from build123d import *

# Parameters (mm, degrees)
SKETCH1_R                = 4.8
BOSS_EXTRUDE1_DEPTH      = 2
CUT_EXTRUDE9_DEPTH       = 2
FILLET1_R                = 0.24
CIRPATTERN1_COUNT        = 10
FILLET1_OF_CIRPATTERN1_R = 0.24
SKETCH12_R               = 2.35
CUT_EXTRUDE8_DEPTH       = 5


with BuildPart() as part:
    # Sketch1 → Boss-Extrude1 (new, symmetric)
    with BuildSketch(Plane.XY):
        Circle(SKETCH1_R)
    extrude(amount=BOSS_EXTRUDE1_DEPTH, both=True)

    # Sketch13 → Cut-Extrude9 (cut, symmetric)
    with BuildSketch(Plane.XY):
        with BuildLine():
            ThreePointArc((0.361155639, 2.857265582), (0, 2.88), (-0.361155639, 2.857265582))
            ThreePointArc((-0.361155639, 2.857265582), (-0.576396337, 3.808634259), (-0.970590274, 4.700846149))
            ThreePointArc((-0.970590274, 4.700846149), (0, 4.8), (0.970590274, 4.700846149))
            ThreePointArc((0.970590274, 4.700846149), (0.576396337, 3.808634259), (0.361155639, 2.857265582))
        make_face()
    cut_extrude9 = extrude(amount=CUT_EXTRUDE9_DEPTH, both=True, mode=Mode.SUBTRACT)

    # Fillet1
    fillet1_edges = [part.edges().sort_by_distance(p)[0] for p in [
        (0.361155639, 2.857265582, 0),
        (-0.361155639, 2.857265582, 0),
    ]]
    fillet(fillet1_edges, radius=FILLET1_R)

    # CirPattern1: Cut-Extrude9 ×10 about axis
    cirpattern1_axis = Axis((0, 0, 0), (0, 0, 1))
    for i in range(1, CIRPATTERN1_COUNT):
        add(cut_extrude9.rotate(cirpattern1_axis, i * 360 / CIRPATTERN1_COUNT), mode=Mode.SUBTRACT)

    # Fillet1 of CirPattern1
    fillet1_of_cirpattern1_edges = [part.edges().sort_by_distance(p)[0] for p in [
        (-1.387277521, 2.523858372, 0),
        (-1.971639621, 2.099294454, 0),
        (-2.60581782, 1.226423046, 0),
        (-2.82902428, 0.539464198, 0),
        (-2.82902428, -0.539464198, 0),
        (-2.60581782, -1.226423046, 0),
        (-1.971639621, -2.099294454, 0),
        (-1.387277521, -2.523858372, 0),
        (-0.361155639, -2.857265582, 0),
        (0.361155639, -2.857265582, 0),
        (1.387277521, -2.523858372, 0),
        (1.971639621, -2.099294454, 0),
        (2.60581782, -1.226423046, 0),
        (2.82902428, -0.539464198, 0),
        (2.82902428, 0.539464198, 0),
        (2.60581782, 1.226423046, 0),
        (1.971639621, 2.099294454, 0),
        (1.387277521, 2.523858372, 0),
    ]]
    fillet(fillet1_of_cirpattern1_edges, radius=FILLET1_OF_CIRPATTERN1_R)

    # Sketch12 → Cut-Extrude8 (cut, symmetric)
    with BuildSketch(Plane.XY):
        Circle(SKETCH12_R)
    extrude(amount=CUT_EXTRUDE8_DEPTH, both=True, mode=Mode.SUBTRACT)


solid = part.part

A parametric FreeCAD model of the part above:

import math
import FreeCAD as App
import Part
import Sketcher
from FreeCAD import Vector
Q = App.Units.Quantity


def edges_at(feature, points):
    """Names of the edges that pass closest to the given points."""
    edges = feature.Shape.Edges
    near = lambda p: min(range(len(edges)), key=lambda i: edges[i].distToShape(Part.Vertex(*p))[0])
    return sorted({f"Edge{near(p) + 1}" for p in points})

doc = App.newDocument("Part")
params = doc.addObject("Spreadsheet::Sheet", "Params")
for row, (alias, value) in enumerate([
    ("sketch1_diameter", "9.6 mm"),
    ("pad1_length", "4 mm"),
    ("sketch2_radius", "4.8 mm"),
    ("sketch2_radius2", "2.88 mm"),
    ("pocket1_length", "4 mm"),
    ("fillet_radius", "0.24 mm"),
    ("fillet2_radius", "0.24 mm"),
    ("sketch3_diameter", "4.7 mm"),
    ("pocket2_length", "10 mm"),
], start=1):
    params.set(f"A{row}", alias)
    params.set(f"B{row}", "=" + value)
    params.setAlias(f"B{row}", alias)

body = doc.addObject("PartDesign::Body", "Body")

# Sketch on XY plane
sketch1 = body.newObject("Sketcher::SketchObject", "Sketch")
sketch1.AttachmentSupport = (doc.getObject("XY_Plane"), [""])
sketch1.MapMode = "FlatFace"
sketch1.addGeometry(Part.Circle(Vector(0, 0, 0), Vector(0, 0, 1), 4.8), False)
sketch1.addConstraint([
    Sketcher.Constraint("Coincident", 0, 3, -1, 1),
    Sketcher.Constraint("Diameter", 0, Q("9.6 mm")),
])
sketch1.setExpression("Constraints[1]", "Params.sketch1_diameter")
pad1 = body.newObject("PartDesign::Pad", "Pad")
pad1.Profile = sketch1
pad1.setExpression("Length", "Params.pad1_length")
pad1.Midplane = True

# Sketch on XY plane
sketch2 = body.newObject("Sketcher::SketchObject", "Sketch001")
sketch2.AttachmentSupport = (doc.getObject("XY_Plane"), [""])
sketch2.MapMode = "FlatFace"
sketch2.addGeometry([
    Part.ArcOfCircle(Part.Circle(Vector(0, 0, 0), Vector(0, 0, 1), 2.88), math.radians(82.796071), math.radians(97.203929)),
    Part.ArcOfCircle(Part.Circle(Vector(5.369287, 2.224243, 0), Vector(0, 0, 1), 5.04798), math.radians(150.619133), math.radians(172.796071)),
    Part.ArcOfCircle(Part.Circle(Vector(0, 0, 0), Vector(0, 0, 1), 4.8), math.radians(78.333992), math.radians(101.666008)),
    Part.ArcOfCircle(Part.Circle(Vector(-5.369287, 2.224243, 0), Vector(0, 0, 1), 5.04798), math.radians(7.203929), math.radians(29.380867)),
], False)
sketch2.addConstraint([
    Sketcher.Constraint("Coincident", 0, 1, 1, 2),
    Sketcher.Constraint("Coincident", 1, 1, 2, 1),
    Sketcher.Constraint("Coincident", 2, 2, 3, 2),
    Sketcher.Constraint("Coincident", 3, 1, 0, 2),
    Sketcher.Constraint("Coincident", 0, 3, -1, 1),
    Sketcher.Constraint("Coincident", 2, 3, -1, 1),
    Sketcher.Constraint("Equal", 1, 3),
    Sketcher.Constraint("Symmetric", 1, 3, 3, 3, -2),
    Sketcher.Constraint("Radius", 2, Q("4.8 mm")),
    Sketcher.Constraint("Radius", 0, Q("2.88 mm")),
    Sketcher.Constraint("Radius", 1, Q("5.04798 mm")),
    Sketcher.Constraint("DistanceX", -1, 1, 1, 1, Q("0.97059 mm")),
    Sketcher.Constraint("DistanceX", 0, 1, 1, 3, Q("5.008132 mm")),
])
sketch2.setExpression("Constraints[8]", "Params.sketch2_radius")
sketch2.setExpression("Constraints[9]", "Params.sketch2_radius2")
pocket1 = body.newObject("PartDesign::Pocket", "Pocket")
pocket1.Profile = sketch2
pocket1.setExpression("Length", "Params.pocket1_length")
pocket1.Midplane = True
doc.recompute()

fillet = body.newObject("PartDesign::Fillet", "Fillet")
fillet.Base = (pocket1, edges_at(pocket1, [(0.361, 2.857, 0), (-0.361, 2.857, 0)]))
fillet.setExpression("Radius", "Params.fillet_radius")
doc.recompute()

polarpattern = body.newObject("PartDesign::PolarPattern", "PolarPattern")
polarpattern.Originals = [pocket1]
polarpattern.Axis = (doc.getObject("Z_Axis"), [""])
polarpattern.Angle = 360
polarpattern.Occurrences = 10
body.Tip = polarpattern
doc.recompute()

fillet2 = body.newObject("PartDesign::Fillet", "Fillet001")
fillet2.Base = (polarpattern, edges_at(polarpattern, [
    (-1.387, 2.524, 0),
    (-1.972, 2.099, 0),
    (-2.606, 1.226, 0),
    (-2.829, 0.539, 0),
    (-2.829, -0.539, 0),
    (-2.606, -1.226, 0),
    (-1.972, -2.099, 0),
    (-1.387, -2.524, 0),
    (-0.361, -2.857, 0),
    (0.361, -2.857, 0),
    (1.387, -2.524, 0),
    (1.972, -2.099, 0),
    (2.606, -1.226, 0),
    (2.829, -0.539, 0),
    (2.829, 0.539, 0),
    (2.606, 1.226, 0),
    (1.972, 2.099, 0),
    (1.387, 2.524, 0),
]))
fillet2.setExpression("Radius", "Params.fillet2_radius")

# Sketch on XY plane
sketch3 = body.newObject("Sketcher::SketchObject", "Sketch002")
sketch3.AttachmentSupport = (doc.getObject("XY_Plane"), [""])
sketch3.MapMode = "FlatFace"
sketch3.addGeometry(Part.Circle(Vector(0, 0, 0), Vector(0, 0, 1), 2.35), False)
sketch3.addConstraint([
    Sketcher.Constraint("Coincident", 0, 3, -1, 1),
    Sketcher.Constraint("Diameter", 0, Q("4.7 mm")),
])
sketch3.setExpression("Constraints[1]", "Params.sketch3_diameter")
pocket2 = body.newObject("PartDesign::Pocket", "Pocket001")
pocket2.Profile = sketch3
pocket2.setExpression("Length", "Params.pocket2_length")
pocket2.Midplane = True

doc.recompute()
